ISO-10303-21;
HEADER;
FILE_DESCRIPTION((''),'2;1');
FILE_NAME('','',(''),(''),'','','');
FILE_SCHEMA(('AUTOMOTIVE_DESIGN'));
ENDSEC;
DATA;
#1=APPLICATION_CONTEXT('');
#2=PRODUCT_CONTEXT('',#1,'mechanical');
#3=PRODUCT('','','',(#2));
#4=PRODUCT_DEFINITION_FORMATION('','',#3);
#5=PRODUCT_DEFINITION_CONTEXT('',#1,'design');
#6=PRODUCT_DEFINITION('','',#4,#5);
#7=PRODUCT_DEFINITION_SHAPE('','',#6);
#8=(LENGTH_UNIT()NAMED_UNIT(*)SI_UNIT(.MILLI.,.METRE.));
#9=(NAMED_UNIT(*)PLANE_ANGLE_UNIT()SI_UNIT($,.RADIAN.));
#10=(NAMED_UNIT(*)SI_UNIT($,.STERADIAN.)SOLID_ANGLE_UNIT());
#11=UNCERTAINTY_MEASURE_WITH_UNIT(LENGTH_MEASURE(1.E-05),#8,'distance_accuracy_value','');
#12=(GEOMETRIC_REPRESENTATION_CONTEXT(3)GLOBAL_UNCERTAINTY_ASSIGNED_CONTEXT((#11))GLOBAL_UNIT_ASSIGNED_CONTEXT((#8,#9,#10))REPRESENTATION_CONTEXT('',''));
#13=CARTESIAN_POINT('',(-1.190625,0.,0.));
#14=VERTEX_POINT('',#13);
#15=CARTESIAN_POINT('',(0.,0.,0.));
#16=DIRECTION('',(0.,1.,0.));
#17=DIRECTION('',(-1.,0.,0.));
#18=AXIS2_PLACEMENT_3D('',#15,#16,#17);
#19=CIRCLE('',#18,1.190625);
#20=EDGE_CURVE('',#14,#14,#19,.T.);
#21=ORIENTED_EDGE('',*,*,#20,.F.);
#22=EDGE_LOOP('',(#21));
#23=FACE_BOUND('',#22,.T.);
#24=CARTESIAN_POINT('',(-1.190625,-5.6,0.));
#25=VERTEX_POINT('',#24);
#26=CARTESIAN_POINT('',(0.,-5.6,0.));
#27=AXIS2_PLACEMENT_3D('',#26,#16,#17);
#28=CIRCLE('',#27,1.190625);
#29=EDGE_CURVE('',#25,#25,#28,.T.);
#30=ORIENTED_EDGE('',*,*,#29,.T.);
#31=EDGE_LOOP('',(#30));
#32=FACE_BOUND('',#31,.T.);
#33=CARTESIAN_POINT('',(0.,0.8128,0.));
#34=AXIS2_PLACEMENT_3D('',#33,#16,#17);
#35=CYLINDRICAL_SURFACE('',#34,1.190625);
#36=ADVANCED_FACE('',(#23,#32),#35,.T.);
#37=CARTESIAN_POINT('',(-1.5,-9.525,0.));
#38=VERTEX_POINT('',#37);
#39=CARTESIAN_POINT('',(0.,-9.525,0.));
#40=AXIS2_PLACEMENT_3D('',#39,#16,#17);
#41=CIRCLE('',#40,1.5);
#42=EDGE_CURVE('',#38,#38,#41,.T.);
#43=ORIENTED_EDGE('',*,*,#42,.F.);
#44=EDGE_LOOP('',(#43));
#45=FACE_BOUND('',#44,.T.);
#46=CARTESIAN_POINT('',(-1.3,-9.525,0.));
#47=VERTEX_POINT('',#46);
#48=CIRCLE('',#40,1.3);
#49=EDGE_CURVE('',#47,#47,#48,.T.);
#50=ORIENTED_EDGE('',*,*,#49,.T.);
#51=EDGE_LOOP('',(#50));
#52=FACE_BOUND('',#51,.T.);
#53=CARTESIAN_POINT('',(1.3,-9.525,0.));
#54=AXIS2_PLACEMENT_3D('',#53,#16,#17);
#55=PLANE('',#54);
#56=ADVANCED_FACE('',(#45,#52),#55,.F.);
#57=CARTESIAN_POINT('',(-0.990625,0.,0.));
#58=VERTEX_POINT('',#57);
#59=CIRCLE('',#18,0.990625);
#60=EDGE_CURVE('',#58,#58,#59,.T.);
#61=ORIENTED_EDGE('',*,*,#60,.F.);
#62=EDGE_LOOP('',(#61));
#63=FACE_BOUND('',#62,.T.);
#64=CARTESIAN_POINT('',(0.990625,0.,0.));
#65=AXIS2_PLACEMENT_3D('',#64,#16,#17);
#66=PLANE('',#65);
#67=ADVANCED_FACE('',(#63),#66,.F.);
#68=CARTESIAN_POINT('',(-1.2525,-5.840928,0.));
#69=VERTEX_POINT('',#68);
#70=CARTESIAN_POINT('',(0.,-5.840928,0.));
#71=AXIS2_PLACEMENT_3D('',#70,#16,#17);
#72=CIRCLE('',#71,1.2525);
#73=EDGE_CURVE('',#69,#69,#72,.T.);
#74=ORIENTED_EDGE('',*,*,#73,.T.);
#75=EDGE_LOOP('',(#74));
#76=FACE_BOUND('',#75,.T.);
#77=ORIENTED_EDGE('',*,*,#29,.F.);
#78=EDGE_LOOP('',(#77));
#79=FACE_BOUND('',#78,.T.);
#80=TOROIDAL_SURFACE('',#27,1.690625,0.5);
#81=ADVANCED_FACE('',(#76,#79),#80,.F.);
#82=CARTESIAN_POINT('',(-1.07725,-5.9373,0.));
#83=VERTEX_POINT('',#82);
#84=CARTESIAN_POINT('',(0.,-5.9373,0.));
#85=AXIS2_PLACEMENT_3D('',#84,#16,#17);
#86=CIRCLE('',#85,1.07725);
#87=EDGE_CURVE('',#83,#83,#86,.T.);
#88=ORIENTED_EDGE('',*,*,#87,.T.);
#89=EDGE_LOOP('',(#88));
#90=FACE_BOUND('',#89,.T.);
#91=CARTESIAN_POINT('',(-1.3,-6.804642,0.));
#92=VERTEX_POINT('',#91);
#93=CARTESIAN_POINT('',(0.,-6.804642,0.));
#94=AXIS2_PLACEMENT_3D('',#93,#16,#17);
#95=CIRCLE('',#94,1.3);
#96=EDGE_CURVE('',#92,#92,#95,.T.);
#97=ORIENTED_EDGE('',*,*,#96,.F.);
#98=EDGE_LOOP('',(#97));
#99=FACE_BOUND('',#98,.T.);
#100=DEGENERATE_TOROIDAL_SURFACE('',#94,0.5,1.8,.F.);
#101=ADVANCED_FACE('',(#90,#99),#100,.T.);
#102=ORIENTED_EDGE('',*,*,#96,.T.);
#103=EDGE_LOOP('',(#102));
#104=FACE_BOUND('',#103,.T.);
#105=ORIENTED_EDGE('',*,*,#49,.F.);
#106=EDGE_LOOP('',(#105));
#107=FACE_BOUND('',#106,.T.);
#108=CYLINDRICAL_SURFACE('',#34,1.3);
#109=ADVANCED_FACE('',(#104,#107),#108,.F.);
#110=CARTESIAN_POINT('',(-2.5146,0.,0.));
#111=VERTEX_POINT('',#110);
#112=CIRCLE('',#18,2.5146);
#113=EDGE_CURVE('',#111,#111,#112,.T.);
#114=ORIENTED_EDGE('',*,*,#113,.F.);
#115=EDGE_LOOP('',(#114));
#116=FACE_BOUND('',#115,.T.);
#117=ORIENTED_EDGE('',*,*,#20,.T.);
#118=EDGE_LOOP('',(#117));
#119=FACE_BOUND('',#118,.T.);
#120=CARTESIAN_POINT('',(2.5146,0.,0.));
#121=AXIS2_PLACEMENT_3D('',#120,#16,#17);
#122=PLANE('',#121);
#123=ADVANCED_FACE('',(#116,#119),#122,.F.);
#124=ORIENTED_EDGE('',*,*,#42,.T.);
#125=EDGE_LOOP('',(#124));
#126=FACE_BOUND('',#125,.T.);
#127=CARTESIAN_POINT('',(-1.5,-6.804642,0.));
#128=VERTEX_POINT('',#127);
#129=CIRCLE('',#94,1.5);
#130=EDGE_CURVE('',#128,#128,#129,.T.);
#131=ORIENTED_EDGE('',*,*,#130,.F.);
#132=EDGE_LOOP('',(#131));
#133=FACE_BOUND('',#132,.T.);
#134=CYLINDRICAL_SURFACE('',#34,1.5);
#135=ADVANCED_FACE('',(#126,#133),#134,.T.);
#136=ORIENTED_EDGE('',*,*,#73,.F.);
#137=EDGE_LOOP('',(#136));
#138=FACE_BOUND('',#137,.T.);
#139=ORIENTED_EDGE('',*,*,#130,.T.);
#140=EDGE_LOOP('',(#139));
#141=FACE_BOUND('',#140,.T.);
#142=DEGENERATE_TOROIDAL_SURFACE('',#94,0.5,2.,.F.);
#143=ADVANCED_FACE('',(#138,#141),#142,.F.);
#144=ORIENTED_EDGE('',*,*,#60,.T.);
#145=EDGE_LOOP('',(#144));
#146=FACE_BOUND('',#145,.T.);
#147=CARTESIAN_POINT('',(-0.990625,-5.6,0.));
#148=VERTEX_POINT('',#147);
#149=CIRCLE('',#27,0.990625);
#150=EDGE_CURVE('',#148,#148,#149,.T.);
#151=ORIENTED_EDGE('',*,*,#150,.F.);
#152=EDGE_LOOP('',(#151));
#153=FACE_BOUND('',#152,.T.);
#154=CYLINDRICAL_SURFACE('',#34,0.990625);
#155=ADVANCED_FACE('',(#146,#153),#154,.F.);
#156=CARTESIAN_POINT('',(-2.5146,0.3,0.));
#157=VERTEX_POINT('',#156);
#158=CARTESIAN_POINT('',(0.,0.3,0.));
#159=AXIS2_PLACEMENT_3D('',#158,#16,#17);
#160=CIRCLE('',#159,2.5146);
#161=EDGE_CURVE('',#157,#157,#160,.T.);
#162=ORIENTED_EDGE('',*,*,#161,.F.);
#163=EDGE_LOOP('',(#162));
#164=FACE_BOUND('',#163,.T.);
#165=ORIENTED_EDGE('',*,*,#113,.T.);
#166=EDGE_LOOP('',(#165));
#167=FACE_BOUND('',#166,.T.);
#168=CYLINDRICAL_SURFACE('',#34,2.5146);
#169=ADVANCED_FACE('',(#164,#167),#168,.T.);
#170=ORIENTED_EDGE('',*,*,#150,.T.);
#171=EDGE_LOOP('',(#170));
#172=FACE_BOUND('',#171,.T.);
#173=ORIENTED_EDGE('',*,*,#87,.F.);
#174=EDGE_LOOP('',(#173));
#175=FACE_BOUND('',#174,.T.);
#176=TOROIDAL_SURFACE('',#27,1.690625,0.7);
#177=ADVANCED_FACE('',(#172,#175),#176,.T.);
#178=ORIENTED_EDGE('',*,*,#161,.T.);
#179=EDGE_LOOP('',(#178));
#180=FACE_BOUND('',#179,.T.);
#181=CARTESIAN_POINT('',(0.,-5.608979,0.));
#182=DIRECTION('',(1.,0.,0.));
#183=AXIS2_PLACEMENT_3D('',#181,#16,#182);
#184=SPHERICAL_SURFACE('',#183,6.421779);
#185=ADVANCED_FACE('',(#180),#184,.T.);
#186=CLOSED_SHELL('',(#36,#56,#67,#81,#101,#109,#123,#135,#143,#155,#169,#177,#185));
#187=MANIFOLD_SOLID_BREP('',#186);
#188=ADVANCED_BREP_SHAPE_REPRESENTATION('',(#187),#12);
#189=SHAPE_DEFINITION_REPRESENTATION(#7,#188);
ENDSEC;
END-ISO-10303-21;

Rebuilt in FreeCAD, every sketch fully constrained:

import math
import FreeCAD as App
import Part
import Sketcher
Q = App.Units.Quantity

doc = App.newDocument("Part")
params = doc.addObject("Spreadsheet::Sheet", "Params")
for row, (alias, value) in enumerate([
    ("sketch1_radius", "2 mm"),
    ("sketch1_radius2", "0.5 mm"),
    ("sketch1_radius3", "0.7 mm"),
    ("sketch1_height", "5.6 mm"),
    ("sketch1_height2", "0.3 mm"),
    ("revolution_angle", "360 deg"),
], start=1):
    params.set(f"A{row}", alias)
    params.set(f"B{row}", "=" + value)
    params.setAlias(f"B{row}", alias)

body = doc.addObject("PartDesign::Body", "Body")

# Sketch on XY plane
sketch1 = body.newObject("Sketcher::SketchObject", "Sketch")
sketch1.AttachmentSupport = (doc.getObject("XY_Plane"), [""])
sketch1.MapMode = "FlatFace"
sketch1.addGeometry(Part.LineSegment(App.Vector(1.3, -6.8, 0), App.Vector(1.3, -9.53, 0)), False)
sketch1.addGeometry(Part.LineSegment(App.Vector(1.3, -9.53, 0), App.Vector(1.5, -9.53, 0)), False)
sketch1.addGeometry(Part.LineSegment(App.Vector(1.5, -9.53, 0), App.Vector(1.5, -6.8, 0)), False)
sketch1.addGeometry(Part.ArcOfCircle(Part.Circle(App.Vector(-0.5, -6.8, 0), App.Vector(0, 0, 1), 2), math.radians(0), math.radians(29)), False)
sketch1.addGeometry(Part.ArcOfCircle(Part.Circle(App.Vector(1.69, -5.6, 0), App.Vector(0, 0, 1), 0.5), math.radians(180), math.radians(209)), False)
sketch1.addGeometry(Part.LineSegment(App.Vector(1.19, -5.6, 0), App.Vector(1.19, 0, 0)), False)
sketch1.addGeometry(Part.LineSegment(App.Vector(1.19, 0, 0), App.Vector(2.51, 0, 0)), False)
sketch1.addGeometry(Part.LineSegment(App.Vector(2.51, 0, 0), App.Vector(2.51, 0.3, 0)), False)
sketch1.addGeometry(Part.ArcOfCircle(Part.Circle(App.Vector(0, -5.61, 0), App.Vector(0, 0, 1), 6.42), math.radians(67), math.radians(90)), False)
sketch1.addGeometry(Part.LineSegment(App.Vector(0, 0.81, 0), App.Vector(0, 0, 0)), False)
sketch1.addGeometry(Part.LineSegment(App.Vector(0, 0, 0), App.Vector(0.99, 0, 0)), False)
sketch1.addGeometry(Part.LineSegment(App.Vector(0.99, 0, 0), App.Vector(0.99, -5.6, 0)), False)
sketch1.addGeometry(Part.ArcOfCircle(Part.Circle(App.Vector(1.69, -5.6, 0), App.Vector(0, 0, 1), 0.7), math.radians(-180), math.radians(-151)), False)
sketch1.addGeometry(Part.ArcOfCircle(Part.Circle(App.Vector(-0.5, -6.8, 0), App.Vector(0, 0, 1), 1.8), math.radians(0), math.radians(29)), False)
sketch1.addConstraint(Sketcher.Constraint("Coincident", 0, 2, 1, 1))
sketch1.addConstraint(Sketcher.Constraint("Coincident", 1, 2, 2, 1))
sketch1.addConstraint(Sketcher.Constraint("Tangent", 2, 2, 3, 1))
sketch1.addConstraint(Sketcher.Constraint("Tangent", 3, 2, 4, 2))
sketch1.addConstraint(Sketcher.Constraint("Tangent", 4, 1, 5, 1))
sketch1.addConstraint(Sketcher.Constraint("Coincident", 5, 2, 6, 1))
sketch1.addConstraint(Sketcher.Constraint("Coincident", 6, 2, 7, 1))
sketch1.addConstraint(Sketcher.Constraint("Coincident", 7, 2, 8, 1))
sketch1.addConstraint(Sketcher.Constraint("Coincident", 8, 2, 9, 1))
sketch1.addConstraint(Sketcher.Constraint("Coincident", 9, 2, 10, 1))
sketch1.addConstraint(Sketcher.Constraint("Coincident", 10, 2, 11, 1))
sketch1.addConstraint(Sketcher.Constraint("Tangent", 11, 2, 12, 1))
sketch1.addConstraint(Sketcher.Constraint("Tangent", 12, 2, 13, 2))
sketch1.addConstraint(Sketcher.Constraint("Tangent", 13, 1, 0, 1))
sketch1.addConstraint(Sketcher.Constraint("Vertical", 0))
sketch1.addConstraint(Sketcher.Constraint("Horizontal", 1))
sketch1.addConstraint(Sketcher.Constraint("Vertical", 2))
sketch1.addConstraint(Sketcher.Constraint("Vertical", 5))
sketch1.addConstraint(Sketcher.Constraint("Horizontal", 6))
sketch1.addConstraint(Sketcher.Constraint("Vertical", 7))
sketch1.addConstraint(Sketcher.Constraint("Vertical", 9))
sketch1.addConstraint(Sketcher.Constraint("Horizontal", 10))
sketch1.addConstraint(Sketcher.Constraint("Vertical", 11))
sketch1.addConstraint(Sketcher.Constraint("Coincident", 9, 2, -1, 1))
sketch1.addConstraint(Sketcher.Constraint("Coincident", 12, 3, 4, 3))
sketch1.addConstraint(Sketcher.Constraint("Coincident", 13, 3, 3, 3))
sketch1.addConstraint(Sketcher.Constraint("PointOnObject", 8, 3, -2))
sketch1.addConstraint(Sketcher.Constraint("PointOnObject", 5, 2, -1))
sketch1.addConstraint(Sketcher.Constraint("Radius", 3, Q("2 mm")))
sketch1.addConstraint(Sketcher.Constraint("Radius", 4, Q("0.5 mm")))
sketch1.addConstraint(Sketcher.Constraint("Radius", 12, Q("0.7 mm")))
sketch1.addConstraint(Sketcher.Constraint("DistanceY", 5, 1, 5, 2, Q("5.6 mm")))
sketch1.addConstraint(Sketcher.Constraint("DistanceY", 7, 1, 7, 2, Q("0.3 mm")))
sketch1.addConstraint(Sketcher.Constraint("DistanceX", 3, 3, -1, 1, Q("0.5 mm")))
sketch1.addConstraint(Sketcher.Constraint("Radius", 8, Q("6.421779 mm")))
sketch1.addConstraint(Sketcher.Constraint("DistanceY", 9, 2, 9, 1, Q("0.8128 mm")))
sketch1.addConstraint(Sketcher.Constraint("DistanceY", 0, 2, -1, 1, Q("9.525 mm")))
sketch1.addConstraint(Sketcher.Constraint("DistanceY", 0, 2, 0, 1, Q("2.720358 mm")))
sketch1.setExpression("Constraints[28]", "Params.sketch1_radius")
sketch1.setExpression("Constraints[29]", "Params.sketch1_radius2")
sketch1.setExpression("Constraints[30]", "Params.sketch1_radius3")
sketch1.setExpression("Constraints[31]", "Params.sketch1_height")
sketch1.setExpression("Constraints[32]", "Params.sketch1_height2")
revolution = body.newObject("PartDesign::Revolution", "Revolution")
revolution.Profile = sketch1
revolution.ReferenceAxis = (sketch1, ["V_Axis"])
revolution.setExpression("Angle", "Params.revolution_angle")

doc.recompute()
